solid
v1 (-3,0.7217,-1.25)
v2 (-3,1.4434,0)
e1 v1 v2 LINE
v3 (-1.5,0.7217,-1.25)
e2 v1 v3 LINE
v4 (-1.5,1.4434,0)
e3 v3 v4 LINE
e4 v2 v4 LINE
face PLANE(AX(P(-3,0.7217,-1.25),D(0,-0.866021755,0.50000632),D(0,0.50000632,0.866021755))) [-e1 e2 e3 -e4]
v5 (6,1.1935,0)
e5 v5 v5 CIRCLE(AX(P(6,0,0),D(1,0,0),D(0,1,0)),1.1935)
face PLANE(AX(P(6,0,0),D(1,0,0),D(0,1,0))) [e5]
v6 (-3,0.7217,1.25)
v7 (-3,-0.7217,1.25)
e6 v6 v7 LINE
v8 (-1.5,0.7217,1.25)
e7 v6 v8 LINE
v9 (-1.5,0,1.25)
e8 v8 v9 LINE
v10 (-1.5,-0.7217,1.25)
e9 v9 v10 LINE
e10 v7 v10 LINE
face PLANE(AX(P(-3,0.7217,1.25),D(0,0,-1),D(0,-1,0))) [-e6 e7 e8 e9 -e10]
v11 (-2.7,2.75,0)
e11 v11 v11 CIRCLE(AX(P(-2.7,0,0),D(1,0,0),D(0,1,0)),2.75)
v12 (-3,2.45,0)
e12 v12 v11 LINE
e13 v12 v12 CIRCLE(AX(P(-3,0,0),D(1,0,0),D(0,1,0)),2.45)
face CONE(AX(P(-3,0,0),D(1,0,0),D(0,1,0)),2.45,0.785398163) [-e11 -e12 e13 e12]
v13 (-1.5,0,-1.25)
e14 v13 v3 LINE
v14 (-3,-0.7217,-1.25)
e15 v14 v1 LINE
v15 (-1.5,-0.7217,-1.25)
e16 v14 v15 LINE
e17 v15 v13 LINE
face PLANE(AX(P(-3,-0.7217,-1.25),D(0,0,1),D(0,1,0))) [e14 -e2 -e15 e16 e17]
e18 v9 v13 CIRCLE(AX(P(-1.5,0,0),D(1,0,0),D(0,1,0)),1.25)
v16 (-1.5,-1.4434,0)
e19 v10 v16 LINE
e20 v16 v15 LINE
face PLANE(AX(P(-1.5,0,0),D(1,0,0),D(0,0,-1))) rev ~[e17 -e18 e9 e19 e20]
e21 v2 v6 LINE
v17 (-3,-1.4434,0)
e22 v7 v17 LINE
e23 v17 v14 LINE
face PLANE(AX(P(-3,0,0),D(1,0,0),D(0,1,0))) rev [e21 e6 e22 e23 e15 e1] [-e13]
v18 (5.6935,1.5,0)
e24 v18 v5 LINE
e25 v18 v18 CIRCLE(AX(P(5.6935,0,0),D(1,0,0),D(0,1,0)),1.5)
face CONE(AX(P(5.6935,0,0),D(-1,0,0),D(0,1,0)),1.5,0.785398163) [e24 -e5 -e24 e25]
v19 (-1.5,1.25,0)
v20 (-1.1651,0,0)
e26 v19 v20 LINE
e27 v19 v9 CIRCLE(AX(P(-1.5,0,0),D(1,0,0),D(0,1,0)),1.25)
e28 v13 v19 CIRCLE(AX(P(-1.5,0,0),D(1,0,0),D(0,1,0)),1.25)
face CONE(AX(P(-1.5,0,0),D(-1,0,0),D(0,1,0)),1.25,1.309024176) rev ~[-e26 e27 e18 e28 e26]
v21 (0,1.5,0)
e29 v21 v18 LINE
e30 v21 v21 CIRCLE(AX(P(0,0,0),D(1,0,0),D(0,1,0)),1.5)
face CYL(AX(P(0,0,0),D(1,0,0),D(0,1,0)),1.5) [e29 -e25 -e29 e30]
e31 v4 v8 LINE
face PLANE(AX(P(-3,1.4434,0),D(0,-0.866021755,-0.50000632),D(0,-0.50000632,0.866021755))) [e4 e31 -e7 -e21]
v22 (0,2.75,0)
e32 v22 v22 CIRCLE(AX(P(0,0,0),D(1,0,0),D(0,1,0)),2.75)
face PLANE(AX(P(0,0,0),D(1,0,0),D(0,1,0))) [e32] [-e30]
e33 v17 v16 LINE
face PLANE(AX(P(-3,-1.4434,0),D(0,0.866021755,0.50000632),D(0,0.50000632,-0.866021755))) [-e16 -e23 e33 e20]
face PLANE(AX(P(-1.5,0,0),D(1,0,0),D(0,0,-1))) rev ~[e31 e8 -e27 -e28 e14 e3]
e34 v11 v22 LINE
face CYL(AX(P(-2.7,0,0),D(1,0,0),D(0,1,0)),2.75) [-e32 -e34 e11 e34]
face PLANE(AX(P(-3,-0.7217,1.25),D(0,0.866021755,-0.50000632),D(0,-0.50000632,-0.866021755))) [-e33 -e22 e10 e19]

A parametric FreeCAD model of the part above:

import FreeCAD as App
import Part
import Sketcher

V = App.Vector
Q = App.Units.Quantity

doc = App.newDocument("Part")
body = doc.addObject("PartDesign::Body", "Body")

sketch1 = body.newObject("Sketcher::SketchObject", "Sketch")
sketch1.AttachmentSupport = (doc.getObject("XY_Plane"), [""])
sketch1.MapMode = "FlatFace"
sketch1.addGeometry([
    Part.LineSegment(V(-3, 0, 0), V(6, 0, 0)),
    Part.LineSegment(V(6, 0, 0), V(6, 1.19, 0)),
    Part.LineSegment(V(6, 1.19, 0), V(5.69, 1.5, 0)),
    Part.LineSegment(V(5.69, 1.5, 0), V(0, 1.5, 0)),
    Part.LineSegment(V(0, 1.5, 0), V(0, 2.75, 0)),
    Part.LineSegment(V(0, 2.75, 0), V(-2.7, 2.75, 0)),
    Part.LineSegment(V(-2.7, 2.75, 0), V(-3, 2.45, 0)),
    Part.LineSegment(V(-3, 2.45, 0), V(-3, 0, 0)),
], False)
sketch1.addConstraint([
    Sketcher.Constraint("Coincident", 0, 2, 1, 1),
    Sketcher.Constraint("Coincident", 1, 2, 2, 1),
    Sketcher.Constraint("Coincident", 2, 2, 3, 1),
    Sketcher.Constraint("Coincident", 3, 2, 4, 1),
    Sketcher.Constraint("Coincident", 4, 2, 5, 1),
    Sketcher.Constraint("Coincident", 5, 2, 6, 1),
    Sketcher.Constraint("Coincident", 6, 2, 7, 1),
    Sketcher.Constraint("Coincident", 7, 2, 0, 1),
    Sketcher.Constraint("Horizontal", 0),
    Sketcher.Constraint("Vertical", 1),
    Sketcher.Constraint("Horizontal", 3),
    Sketcher.Constraint("Vertical", 4),
    Sketcher.Constraint("Horizontal", 5),
    Sketcher.Constraint("Vertical", 7),
    Sketcher.Constraint("PointOnObject", 0, 2, -1),
    Sketcher.Constraint("PointOnObject", 3, 2, -2),
    Sketcher.Constraint("Perpendicular", 2, 6),
    Sketcher.Constraint("DistanceX", 0, 1, 0, 2, Q("9 mm")),
    Sketcher.Constraint("Angle", 2, Q("135 deg")),
    Sketcher.Constraint("DistanceX", 5, 2, 5, 1, Q("2.7 mm")),
    Sketcher.Constraint("DistanceX", -1, 1, 0, 2, Q("6 mm")),
    Sketcher.Constraint("DistanceY", 4, 1, 4, 2, Q("1.25 mm")),
    Sketcher.Constraint("DistanceY", 7, 2, 7, 1, Q("2.45 mm")),
    Sketcher.Constraint("DistanceX", 3, 2, 3, 1, Q("5.6935 mm")),
])
revolution = body.newObject("PartDesign::Revolution", "Revolution")
revolution.Profile = sketch1
revolution.ReferenceAxis = (sketch1, ["H_Axis"])
revolution.Angle = 360

sketch2 = body.newObject("Sketcher::SketchObject", "Sketch001")
sketch2.AttachmentSupport = (doc.getObject("XY_Plane"), [""])
sketch2.MapMode = "FlatFace"
sketch2.addGeometry([
    Part.LineSegment(V(-3, 0, 0), V(-1.2, 0, 0)),
    Part.LineSegment(V(-1.2, 0, 0), V(-1.5, 1.2, 0)),
    Part.LineSegment(V(-1.5, 1.2, 0), V(-3, 1.2, 0)),
    Part.LineSegment(V(-3, 1.2, 0), V(-3, 0, 0)),
], False)
sketch2.addConstraint([
    Sketcher.Constraint("Coincident", 0, 2, 1, 1),
    Sketcher.Constraint("Coincident", 1, 2, 2, 1),
    Sketcher.Constraint("Coincident", 2, 2, 3, 1),
    Sketcher.Constraint("Coincident", 3, 2, 0, 1),
    Sketcher.Constraint("Horizontal", 0),
    Sketcher.Constraint("Horizontal", 2),
    Sketcher.Constraint("Vertical", 3),
    Sketcher.Constraint("PointOnObject", 0, 2, -1),
    Sketcher.Constraint("DistanceX", 2, 2, 2, 1, Q("1.5 mm")),
    Sketcher.Constraint("DistanceX", 2, 2, -1, 1, Q("3 mm")),
    Sketcher.Constraint("DistanceY", 3, 2, 3, 1, Q("1.25 mm")),
    Sketcher.Constraint("DistanceX", 0, 1, 0, 2, Q("1.835 mm")),
])
groove = body.newObject("PartDesign::Groove", "Groove")
groove.Profile = sketch2
groove.ReferenceAxis = (sketch2, ["H_Axis"])
groove.Angle = 360

sketch3 = body.newObject("Sketcher::SketchObject", "Sketch002")
sketch3.AttachmentSupport = (doc.getObject("YZ_Plane"), [""])
sketch3.MapMode = "FlatFace"
sketch3.AttachmentOffset = App.Placement(V(0, 0, -3), App.Rotation())
sketch3.addGeometry([
    Part.LineSegment(V(1.4, 0, 0), V(0.7, 1.2, 0)),
    Part.LineSegment(V(0.7, 1.2, 0), V(-0.7, 1.2, 0)),
    Part.LineSegment(V(-0.7, 1.2, 0), V(-1.4, 0, 0)),
    Part.LineSegment(V(-1.4, 0, 0), V(-0.7, -1.2, 0)),
    Part.LineSegment(V(-0.7, -1.2, 0), V(0.7, -1.2, 0)),
    Part.LineSegment(V(0.7, -1.2, 0), V(1.4, 0, 0)),
], False)
sketch3.addConstraint([
    Sketcher.Constraint("Coincident", 0, 2, 1, 1),
    Sketcher.Constraint("Coincident", 1, 2, 2, 1),
    Sketcher.Constraint("Coincident", 2, 2, 3, 1),
    Sketcher.Constraint("Coincident", 3, 2, 4, 1),
    Sketcher.Constraint("Coincident", 4, 2, 5, 1),
    Sketcher.Constraint("Coincident", 5, 2, 0, 1),
    Sketcher.Constraint("Horizontal", 1),
    Sketcher.Constraint("Horizontal", 4),
    Sketcher.Constraint("Symmetric", 0, 2, 3, 2, -1, 1),
    Sketcher.Constraint("Symmetric", 2, 2, 5, 2, -1, 1),
    Sketcher.Constraint("PointOnObject", 2, 2, -1),
    Sketcher.Constraint("Parallel", 2, 5),
    Sketcher.Constraint("Vertical", 1, 2, 3, 2),
    Sketcher.Constraint("Angle", 0, Q("120.0004 deg")),
    Sketcher.Constraint("DistanceY", 3, 2, 1, 2, Q("2.5 mm")),
    Sketcher.Constraint("DistanceX", 1, 2, 1, 1, Q("1.4434 mm")),
])
pocket1 = body.newObject("PartDesign::Pocket", "Pocket")
pocket1.Profile = sketch3
pocket1.Length = 1.5
pocket1.Reversed = True

doc.recompute()
